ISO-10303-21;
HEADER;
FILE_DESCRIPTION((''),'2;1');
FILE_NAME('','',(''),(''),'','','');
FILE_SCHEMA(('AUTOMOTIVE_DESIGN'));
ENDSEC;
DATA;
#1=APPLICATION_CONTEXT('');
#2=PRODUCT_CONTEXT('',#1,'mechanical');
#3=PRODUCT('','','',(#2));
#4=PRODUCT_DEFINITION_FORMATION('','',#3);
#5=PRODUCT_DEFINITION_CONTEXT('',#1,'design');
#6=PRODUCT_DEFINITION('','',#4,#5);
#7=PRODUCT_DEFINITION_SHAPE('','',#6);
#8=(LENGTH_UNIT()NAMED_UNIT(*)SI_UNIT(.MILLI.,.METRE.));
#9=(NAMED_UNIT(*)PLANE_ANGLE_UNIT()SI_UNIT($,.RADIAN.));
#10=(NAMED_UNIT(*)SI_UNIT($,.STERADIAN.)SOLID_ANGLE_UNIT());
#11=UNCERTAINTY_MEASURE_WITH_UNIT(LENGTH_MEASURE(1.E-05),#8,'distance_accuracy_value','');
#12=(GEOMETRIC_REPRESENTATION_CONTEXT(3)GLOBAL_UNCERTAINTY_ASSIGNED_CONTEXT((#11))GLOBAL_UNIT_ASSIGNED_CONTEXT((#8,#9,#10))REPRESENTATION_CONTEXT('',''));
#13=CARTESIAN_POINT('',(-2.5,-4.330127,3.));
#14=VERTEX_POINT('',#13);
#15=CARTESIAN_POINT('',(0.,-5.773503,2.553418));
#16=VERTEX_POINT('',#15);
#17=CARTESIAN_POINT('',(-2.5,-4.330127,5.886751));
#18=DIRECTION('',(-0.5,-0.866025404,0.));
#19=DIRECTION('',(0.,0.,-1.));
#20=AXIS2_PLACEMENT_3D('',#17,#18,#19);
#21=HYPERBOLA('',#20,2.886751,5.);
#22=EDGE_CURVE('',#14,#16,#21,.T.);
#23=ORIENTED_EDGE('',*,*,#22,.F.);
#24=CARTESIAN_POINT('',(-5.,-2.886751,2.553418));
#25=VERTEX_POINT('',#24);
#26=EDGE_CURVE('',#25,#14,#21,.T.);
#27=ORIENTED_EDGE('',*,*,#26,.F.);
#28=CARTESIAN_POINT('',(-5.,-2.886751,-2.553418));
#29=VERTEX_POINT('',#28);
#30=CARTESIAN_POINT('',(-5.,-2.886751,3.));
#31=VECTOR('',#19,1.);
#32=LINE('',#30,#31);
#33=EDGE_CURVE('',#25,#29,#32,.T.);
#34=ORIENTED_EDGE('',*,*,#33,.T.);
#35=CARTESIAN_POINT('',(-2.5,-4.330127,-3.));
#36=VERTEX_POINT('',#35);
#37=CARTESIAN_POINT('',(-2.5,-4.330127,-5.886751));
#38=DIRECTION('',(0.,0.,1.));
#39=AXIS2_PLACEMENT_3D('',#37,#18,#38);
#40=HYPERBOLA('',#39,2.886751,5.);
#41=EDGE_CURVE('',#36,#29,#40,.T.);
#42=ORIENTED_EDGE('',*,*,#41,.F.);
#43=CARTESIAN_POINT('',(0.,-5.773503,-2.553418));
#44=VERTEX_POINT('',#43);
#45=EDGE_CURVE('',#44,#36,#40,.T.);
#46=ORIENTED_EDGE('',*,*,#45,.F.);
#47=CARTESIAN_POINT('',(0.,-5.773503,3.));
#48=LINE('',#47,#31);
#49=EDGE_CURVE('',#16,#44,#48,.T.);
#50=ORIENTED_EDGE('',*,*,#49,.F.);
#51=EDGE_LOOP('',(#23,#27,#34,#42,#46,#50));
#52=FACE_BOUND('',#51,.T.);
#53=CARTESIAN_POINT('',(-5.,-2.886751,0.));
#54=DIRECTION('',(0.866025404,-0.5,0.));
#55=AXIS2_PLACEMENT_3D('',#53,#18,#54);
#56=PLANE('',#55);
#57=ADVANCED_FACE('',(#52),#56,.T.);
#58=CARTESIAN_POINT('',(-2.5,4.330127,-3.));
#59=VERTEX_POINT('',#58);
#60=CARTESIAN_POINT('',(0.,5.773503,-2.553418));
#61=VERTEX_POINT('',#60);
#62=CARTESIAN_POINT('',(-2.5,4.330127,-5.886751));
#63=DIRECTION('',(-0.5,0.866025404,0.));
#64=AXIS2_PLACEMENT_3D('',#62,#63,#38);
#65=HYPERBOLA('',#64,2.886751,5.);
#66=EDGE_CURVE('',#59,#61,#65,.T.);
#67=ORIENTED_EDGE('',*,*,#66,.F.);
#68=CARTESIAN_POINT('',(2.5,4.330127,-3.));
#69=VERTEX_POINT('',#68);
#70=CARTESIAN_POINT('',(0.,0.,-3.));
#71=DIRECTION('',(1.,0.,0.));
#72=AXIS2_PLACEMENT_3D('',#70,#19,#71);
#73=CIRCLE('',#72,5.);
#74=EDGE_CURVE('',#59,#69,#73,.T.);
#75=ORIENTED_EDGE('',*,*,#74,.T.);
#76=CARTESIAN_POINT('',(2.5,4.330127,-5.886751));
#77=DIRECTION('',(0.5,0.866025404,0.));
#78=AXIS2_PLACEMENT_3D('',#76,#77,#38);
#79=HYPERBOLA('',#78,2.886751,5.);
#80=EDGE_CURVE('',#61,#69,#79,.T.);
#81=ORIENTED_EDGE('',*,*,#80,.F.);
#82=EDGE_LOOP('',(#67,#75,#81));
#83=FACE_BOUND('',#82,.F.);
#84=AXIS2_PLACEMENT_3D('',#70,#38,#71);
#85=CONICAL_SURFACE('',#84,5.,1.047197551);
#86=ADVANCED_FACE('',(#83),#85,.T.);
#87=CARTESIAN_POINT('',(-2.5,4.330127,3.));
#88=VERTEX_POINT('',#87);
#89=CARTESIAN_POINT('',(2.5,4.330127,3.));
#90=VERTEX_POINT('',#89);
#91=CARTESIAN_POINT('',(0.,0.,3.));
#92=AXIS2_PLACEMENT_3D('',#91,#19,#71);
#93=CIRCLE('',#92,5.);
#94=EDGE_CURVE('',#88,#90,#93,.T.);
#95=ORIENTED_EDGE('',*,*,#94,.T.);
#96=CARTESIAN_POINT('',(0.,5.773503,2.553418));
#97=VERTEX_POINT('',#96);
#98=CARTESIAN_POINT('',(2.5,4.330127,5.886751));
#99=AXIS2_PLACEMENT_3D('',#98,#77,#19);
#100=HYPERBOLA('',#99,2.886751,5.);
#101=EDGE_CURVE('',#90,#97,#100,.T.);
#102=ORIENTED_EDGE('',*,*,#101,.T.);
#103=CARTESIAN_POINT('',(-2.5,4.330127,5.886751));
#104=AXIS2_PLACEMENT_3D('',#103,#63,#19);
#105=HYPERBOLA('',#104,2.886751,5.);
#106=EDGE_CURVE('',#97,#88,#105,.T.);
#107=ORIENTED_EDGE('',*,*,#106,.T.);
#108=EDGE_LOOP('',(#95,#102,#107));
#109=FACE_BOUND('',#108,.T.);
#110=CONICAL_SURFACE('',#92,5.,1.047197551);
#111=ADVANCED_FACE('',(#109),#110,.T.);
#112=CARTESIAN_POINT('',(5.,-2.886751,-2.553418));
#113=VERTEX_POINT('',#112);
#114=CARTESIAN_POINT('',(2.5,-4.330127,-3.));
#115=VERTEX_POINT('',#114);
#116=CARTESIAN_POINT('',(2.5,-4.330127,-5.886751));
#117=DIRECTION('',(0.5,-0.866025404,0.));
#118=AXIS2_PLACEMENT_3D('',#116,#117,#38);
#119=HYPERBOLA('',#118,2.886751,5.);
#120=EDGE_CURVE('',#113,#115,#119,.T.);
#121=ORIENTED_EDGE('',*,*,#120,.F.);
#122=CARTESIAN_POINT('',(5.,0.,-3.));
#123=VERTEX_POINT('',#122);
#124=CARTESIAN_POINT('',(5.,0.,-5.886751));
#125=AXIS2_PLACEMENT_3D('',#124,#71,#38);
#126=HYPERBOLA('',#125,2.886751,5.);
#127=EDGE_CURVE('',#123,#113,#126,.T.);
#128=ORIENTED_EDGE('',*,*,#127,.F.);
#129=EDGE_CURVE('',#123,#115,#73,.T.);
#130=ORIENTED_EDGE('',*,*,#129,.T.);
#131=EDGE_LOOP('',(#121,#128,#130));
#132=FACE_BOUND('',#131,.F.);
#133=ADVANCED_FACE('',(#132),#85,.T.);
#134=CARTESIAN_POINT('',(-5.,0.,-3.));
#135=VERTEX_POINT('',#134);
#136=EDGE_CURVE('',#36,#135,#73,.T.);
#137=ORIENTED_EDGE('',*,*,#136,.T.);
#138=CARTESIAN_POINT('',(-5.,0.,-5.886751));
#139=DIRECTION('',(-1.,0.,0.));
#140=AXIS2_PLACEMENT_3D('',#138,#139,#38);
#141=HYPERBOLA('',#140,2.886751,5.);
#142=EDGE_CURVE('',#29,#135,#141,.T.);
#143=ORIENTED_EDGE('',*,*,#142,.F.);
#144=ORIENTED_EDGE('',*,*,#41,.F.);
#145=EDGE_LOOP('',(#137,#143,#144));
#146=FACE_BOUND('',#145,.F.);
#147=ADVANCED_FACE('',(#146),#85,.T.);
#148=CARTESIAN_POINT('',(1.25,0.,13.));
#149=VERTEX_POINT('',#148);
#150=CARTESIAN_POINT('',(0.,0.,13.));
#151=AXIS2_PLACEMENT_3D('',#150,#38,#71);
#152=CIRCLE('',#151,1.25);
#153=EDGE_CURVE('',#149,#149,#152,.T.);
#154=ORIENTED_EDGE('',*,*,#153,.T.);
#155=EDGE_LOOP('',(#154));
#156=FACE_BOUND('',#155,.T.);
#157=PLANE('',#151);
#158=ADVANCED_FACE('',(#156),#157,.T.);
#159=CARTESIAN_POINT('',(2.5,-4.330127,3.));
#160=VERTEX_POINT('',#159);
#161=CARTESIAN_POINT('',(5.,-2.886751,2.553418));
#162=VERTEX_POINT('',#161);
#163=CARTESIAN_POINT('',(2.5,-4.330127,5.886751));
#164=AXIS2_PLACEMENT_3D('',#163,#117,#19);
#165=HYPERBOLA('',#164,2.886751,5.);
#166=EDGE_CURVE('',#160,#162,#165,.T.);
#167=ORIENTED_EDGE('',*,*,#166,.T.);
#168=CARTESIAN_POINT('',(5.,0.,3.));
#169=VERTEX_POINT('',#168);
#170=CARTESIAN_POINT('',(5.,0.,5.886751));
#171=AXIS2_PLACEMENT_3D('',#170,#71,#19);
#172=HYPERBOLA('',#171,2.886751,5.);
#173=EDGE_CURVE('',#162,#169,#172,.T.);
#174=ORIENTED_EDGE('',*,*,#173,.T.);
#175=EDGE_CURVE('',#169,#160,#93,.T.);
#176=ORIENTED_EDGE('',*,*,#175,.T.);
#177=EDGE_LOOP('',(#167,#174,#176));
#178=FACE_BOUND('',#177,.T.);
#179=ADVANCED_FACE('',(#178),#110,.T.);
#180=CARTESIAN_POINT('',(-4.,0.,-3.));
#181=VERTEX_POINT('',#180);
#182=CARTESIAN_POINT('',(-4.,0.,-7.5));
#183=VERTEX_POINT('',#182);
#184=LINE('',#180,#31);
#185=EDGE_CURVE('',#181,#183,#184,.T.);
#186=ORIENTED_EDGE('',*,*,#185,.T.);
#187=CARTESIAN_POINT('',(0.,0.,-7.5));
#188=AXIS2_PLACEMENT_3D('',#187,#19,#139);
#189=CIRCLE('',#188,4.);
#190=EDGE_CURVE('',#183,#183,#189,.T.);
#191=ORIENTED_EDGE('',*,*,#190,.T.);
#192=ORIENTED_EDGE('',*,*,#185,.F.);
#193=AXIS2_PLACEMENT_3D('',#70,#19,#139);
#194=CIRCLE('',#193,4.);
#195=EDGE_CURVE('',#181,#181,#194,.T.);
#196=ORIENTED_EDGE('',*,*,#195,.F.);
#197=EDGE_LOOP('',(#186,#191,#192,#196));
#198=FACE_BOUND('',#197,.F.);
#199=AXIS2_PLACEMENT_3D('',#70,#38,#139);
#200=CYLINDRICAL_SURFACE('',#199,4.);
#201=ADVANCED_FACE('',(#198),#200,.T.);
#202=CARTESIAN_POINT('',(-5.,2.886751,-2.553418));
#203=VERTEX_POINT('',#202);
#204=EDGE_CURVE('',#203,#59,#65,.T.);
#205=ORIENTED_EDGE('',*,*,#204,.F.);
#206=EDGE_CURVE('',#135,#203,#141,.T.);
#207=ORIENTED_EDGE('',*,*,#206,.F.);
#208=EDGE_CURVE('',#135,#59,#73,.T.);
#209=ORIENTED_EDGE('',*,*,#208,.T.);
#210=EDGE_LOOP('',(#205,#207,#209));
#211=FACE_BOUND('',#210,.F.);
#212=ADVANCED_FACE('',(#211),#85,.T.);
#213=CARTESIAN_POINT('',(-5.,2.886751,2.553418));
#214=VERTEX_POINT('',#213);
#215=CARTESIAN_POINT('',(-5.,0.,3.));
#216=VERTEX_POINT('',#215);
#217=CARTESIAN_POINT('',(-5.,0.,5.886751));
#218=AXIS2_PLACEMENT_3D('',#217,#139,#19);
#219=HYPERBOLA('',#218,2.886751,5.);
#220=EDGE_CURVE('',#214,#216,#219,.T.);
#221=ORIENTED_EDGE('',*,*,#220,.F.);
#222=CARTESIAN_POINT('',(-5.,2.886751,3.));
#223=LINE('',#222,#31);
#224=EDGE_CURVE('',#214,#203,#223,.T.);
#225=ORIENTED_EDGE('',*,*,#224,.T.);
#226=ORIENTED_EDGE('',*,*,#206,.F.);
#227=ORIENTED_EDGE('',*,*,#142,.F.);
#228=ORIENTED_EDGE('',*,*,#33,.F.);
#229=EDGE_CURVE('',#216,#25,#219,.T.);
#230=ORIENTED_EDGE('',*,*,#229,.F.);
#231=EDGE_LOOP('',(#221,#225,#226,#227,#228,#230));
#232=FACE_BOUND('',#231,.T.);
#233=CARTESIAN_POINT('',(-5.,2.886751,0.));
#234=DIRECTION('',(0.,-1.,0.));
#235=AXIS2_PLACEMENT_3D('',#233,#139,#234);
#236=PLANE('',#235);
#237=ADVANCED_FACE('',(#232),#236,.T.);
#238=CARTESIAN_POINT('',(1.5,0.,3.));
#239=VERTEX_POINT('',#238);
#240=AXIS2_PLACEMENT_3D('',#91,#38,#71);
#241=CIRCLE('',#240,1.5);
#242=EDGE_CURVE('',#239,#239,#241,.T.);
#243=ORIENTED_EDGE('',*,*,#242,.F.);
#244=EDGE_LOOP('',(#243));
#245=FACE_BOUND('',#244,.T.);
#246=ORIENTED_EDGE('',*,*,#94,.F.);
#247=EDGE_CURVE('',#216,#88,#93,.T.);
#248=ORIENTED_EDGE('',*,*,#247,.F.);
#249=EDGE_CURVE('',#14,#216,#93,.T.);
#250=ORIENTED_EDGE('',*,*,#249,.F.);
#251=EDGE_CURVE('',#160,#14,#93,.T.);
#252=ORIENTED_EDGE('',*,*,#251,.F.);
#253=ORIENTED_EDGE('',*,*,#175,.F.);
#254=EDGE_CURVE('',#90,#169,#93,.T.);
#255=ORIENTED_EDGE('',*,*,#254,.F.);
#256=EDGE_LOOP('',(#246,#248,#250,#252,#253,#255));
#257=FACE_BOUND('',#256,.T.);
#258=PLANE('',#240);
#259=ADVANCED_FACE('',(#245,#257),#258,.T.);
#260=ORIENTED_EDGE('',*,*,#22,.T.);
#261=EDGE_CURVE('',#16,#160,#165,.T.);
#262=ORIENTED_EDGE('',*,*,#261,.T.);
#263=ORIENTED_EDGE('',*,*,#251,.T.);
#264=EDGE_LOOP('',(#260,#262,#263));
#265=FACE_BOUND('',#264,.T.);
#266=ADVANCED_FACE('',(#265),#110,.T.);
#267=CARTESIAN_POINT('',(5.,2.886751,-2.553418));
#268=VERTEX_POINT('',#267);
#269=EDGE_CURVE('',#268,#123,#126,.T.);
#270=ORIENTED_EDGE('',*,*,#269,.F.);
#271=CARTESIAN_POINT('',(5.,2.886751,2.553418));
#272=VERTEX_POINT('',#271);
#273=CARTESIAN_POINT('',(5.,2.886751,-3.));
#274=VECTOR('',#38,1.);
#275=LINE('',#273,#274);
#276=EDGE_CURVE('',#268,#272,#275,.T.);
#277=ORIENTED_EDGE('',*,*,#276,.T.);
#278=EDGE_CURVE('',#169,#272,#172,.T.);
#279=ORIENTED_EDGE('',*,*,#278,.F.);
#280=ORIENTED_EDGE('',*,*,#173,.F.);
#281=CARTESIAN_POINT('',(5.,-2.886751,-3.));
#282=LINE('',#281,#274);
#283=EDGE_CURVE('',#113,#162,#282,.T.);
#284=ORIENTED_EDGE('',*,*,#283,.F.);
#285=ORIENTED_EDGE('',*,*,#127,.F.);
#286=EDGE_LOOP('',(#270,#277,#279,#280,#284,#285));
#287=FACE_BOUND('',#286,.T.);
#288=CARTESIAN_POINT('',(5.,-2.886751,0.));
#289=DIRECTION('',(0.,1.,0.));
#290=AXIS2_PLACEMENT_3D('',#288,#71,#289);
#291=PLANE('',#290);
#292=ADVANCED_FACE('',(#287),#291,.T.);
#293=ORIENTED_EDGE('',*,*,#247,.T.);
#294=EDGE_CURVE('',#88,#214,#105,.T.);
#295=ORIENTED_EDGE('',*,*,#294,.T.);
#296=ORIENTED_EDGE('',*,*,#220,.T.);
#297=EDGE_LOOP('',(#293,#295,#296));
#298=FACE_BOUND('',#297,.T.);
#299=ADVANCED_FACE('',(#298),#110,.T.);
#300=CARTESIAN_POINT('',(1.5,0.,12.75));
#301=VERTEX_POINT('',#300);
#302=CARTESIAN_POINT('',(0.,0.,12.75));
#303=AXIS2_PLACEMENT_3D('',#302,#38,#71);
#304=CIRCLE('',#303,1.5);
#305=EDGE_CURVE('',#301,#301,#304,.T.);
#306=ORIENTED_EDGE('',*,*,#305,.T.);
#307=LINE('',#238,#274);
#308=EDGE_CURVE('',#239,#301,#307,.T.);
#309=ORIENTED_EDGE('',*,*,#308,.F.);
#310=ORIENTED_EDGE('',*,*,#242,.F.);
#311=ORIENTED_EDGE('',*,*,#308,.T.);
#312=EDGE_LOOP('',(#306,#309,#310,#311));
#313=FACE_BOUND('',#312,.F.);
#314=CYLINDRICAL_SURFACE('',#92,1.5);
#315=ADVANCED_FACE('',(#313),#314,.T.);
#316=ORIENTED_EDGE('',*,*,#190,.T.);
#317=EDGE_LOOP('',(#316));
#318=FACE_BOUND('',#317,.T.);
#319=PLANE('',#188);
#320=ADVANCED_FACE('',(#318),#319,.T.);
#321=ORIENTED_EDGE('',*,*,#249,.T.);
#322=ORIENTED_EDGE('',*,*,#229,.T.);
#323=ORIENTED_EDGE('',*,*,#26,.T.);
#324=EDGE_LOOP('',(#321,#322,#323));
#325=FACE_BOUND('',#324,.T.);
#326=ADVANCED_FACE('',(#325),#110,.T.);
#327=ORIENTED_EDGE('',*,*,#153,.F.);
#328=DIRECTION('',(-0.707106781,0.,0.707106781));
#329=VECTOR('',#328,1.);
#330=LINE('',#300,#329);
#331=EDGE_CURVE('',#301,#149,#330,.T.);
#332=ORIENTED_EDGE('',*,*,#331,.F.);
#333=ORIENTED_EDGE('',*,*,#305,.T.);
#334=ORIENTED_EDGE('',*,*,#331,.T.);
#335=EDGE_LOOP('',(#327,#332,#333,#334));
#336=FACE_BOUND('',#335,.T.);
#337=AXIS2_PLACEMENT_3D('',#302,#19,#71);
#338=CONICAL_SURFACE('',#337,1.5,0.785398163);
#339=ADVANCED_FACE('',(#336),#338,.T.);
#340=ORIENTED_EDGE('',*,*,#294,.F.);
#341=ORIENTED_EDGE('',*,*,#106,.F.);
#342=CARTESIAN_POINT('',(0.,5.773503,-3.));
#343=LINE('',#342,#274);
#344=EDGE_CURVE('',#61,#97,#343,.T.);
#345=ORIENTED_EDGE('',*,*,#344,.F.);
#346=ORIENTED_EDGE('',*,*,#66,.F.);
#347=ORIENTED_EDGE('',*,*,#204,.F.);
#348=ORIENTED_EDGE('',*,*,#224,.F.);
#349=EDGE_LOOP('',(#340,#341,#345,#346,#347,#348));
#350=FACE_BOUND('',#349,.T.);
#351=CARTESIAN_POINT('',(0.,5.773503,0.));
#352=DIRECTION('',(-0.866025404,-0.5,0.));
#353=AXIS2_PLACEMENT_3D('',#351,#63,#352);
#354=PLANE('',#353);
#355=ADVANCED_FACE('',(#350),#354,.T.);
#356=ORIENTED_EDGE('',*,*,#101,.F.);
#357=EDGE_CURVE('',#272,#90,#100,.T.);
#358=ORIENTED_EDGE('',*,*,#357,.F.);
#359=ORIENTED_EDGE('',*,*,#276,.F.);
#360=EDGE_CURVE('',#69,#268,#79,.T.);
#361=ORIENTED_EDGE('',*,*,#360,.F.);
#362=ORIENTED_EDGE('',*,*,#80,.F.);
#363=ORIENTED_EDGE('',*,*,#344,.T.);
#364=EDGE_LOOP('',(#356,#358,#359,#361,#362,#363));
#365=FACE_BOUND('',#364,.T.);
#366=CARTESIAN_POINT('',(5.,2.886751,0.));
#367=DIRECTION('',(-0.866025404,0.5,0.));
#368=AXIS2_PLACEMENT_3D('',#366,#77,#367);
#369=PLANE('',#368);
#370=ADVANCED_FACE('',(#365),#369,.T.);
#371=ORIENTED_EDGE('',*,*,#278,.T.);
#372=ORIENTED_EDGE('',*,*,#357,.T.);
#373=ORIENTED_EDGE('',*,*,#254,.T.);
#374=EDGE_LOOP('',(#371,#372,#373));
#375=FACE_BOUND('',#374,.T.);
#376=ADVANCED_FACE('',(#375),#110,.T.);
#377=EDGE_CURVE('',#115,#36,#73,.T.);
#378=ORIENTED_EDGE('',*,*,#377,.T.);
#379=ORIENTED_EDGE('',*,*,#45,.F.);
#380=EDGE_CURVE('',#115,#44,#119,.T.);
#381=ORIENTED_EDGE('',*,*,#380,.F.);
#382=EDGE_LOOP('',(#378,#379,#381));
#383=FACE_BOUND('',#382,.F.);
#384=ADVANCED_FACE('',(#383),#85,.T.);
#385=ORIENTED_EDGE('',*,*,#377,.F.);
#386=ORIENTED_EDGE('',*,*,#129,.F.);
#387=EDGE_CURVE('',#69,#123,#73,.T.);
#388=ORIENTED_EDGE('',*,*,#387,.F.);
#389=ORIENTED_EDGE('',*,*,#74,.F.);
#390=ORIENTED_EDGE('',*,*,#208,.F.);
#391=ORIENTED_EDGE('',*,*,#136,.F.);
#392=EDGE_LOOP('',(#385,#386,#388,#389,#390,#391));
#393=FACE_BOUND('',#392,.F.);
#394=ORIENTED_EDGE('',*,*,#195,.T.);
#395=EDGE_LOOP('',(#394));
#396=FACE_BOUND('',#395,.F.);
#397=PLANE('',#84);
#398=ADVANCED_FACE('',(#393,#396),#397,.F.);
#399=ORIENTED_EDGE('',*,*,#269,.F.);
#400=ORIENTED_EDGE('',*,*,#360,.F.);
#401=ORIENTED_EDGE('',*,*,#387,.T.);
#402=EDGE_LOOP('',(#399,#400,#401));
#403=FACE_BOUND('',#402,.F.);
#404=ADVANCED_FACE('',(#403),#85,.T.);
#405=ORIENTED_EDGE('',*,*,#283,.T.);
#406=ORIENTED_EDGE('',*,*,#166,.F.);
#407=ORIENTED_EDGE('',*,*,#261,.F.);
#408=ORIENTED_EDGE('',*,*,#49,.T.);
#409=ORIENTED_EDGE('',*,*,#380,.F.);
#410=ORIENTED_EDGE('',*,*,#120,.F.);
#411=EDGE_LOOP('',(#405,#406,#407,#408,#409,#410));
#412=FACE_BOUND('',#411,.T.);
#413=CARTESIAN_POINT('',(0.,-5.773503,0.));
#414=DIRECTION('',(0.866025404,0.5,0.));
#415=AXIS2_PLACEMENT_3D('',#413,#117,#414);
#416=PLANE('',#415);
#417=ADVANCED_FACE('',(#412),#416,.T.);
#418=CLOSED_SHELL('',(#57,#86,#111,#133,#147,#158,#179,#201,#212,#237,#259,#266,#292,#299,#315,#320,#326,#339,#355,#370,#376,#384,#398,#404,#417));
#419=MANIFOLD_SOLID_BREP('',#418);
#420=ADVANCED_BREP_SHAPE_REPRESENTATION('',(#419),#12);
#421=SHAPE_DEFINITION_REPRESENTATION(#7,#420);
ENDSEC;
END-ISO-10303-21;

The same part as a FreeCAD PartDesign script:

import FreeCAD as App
import Part
import Sketcher
Q = App.Units.Quantity


def edges_at(feature, points):
    """Names of the edges that pass closest to the given points."""
    edges = feature.Shape.Edges
    near = lambda p: min(range(len(edges)), key=lambda i: edges[i].distToShape(Part.Vertex(*p))[0])
    return sorted({f"Edge{near(p) + 1}" for p in points})


def add_polygon(sketch, points):
    """Adds a closed chain of lines whose ends are joined by coincident constraints."""
    first, n = sketch.GeometryCount, len(points)
    for a, b in zip(points, points[1:] + points[:1]):
        sketch.addGeometry(Part.LineSegment(App.Vector(*a, 0), App.Vector(*b, 0)), False)
    for i in range(n):
        sketch.addConstraint(Sketcher.Constraint("Coincident", first + i, 2, first + (i + 1) % n, 1))

doc = App.newDocument("Part")
body = doc.addObject("PartDesign::Body", "Body")

# Sketch on XY plane
sketch1 = body.newObject("Sketcher::SketchObject", "Sketch")
sketch1.AttachmentSupport = (doc.getObject("XY_Plane"), [""])
sketch1.MapMode = "FlatFace"
add_polygon(sketch1, [(0, -6), (5, -3), (5, 3), (0, 6), (-5, 3), (-5, -3)])  # lines 0-5
sketch1.addConstraint([
    Sketcher.Constraint("Vertical", 1),
    Sketcher.Constraint("Vertical", 4),
    Sketcher.Constraint("Symmetric", 0, 2, 3, 2, -1, 1),
    Sketcher.Constraint("Symmetric", 2, 2, 5, 2, -1, 1),
    Sketcher.Constraint("PointOnObject", 2, 2, -2),
    Sketcher.Constraint("Parallel", 2, 5),
    Sketcher.Constraint("Horizontal", 1, 2, 3, 2),
    Sketcher.Constraint("Angle", 0, Q("30 deg")),
    Sketcher.Constraint("DistanceX", -1, 1, 0, 2, 5.0),
    Sketcher.Constraint("DistanceY", 1, 1, 1, 2, 5.773503),
])
pad1 = body.newObject("PartDesign::Pad", "Pad")
pad1.Profile = sketch1
pad1.Length = 6
pad1.Midplane = True

# Sketch on XY plane
sketch2 = body.newObject("Sketcher::SketchObject", "Sketch001")
sketch2.AttachmentSupport = (doc.getObject("XY_Plane"), [""])
sketch2.MapMode = "FlatFace"
sketch2.AttachmentOffset = App.Placement(App.Vector(0, 0, 3), App.Rotation())
add_polygon(sketch2, [(-18, 19), (-18, -19), (18, -19), (18, 19)])  # lines 0-3
sketch2.addGeometry(Part.Circle(App.Vector(0, 0, 0), App.Vector(0, 0, 1), 5), False)  # 4
sketch2.addConstraint([
    Sketcher.Constraint("Vertical", 0),
    Sketcher.Constraint("Horizontal", 1),
    Sketcher.Constraint("Vertical", 2),
    Sketcher.Constraint("Horizontal", 3),
    Sketcher.Constraint("Coincident", 4, 3, -1, 1),
    Sketcher.Constraint("Symmetric", 0, 2, 2, 2, -1, 1),
    Sketcher.Constraint("Diameter", 4, 10.0),
    Sketcher.Constraint("DistanceX", 1, 1, 1, 2, 36.066),
    Sketcher.Constraint("DistanceY", 0, 2, 0, 1, 37.614),
])
pocket1 = body.newObject("PartDesign::Pocket", "Pocket")
pocket1.Profile = sketch2
pocket1.Length = 6
pocket1.TaperAngle = 60

# Sketch on XY plane
sketch3 = body.newObject("Sketcher::SketchObject", "Sketch002")
sketch3.AttachmentSupport = (doc.getObject("XY_Plane"), [""])
sketch3.MapMode = "FlatFace"
sketch3.AttachmentOffset = App.Placement(App.Vector(0, 0, -3), App.Rotation())
sketch3.addGeometry(Part.Circle(App.Vector(0, 0, 0), App.Vector(0, 0, 1), 4), False)
sketch3.addConstraint([
    Sketcher.Constraint("Coincident", 0, 3, -1, 1),
    Sketcher.Constraint("Diameter", 0, 8.0),
])
pad2 = body.newObject("PartDesign::Pad", "Pad001")
pad2.Profile = sketch3
pad2.Length = 4.5
pad2.Reversed = True

# Sketch on XY plane
sketch4 = body.newObject("Sketcher::SketchObject", "Sketch003")
sketch4.AttachmentSupport = (doc.getObject("XY_Plane"), [""])
sketch4.MapMode = "FlatFace"
sketch4.AttachmentOffset = App.Placement(App.Vector(0, 0, 3), App.Rotation())
sketch4.addGeometry(Part.Circle(App.Vector(0, 0, 0), App.Vector(0, 0, 1), 1.5), False)
sketch4.addConstraint([
    Sketcher.Constraint("Coincident", 0, 3, -1, 1),
    Sketcher.Constraint("Diameter", 0, 3.0),
])
pad3 = body.newObject("PartDesign::Pad", "Pad002")
pad3.Profile = sketch4
pad3.Length = 10
doc.recompute()

chamfer = body.newObject("PartDesign::Chamfer", "Chamfer")
chamfer.Base = (pad3, edges_at(pad3, [(-1.5, 0, 13)]))
chamfer.Size = 0.25
doc.recompute()

mirrored = body.newObject("PartDesign::Mirrored", "Mirrored")
mirrored.Originals = [pocket1]
mirrored.MirrorPlane = (doc.getObject("XY_Plane"), [""])
body.Tip = mirrored

doc.recompute()
